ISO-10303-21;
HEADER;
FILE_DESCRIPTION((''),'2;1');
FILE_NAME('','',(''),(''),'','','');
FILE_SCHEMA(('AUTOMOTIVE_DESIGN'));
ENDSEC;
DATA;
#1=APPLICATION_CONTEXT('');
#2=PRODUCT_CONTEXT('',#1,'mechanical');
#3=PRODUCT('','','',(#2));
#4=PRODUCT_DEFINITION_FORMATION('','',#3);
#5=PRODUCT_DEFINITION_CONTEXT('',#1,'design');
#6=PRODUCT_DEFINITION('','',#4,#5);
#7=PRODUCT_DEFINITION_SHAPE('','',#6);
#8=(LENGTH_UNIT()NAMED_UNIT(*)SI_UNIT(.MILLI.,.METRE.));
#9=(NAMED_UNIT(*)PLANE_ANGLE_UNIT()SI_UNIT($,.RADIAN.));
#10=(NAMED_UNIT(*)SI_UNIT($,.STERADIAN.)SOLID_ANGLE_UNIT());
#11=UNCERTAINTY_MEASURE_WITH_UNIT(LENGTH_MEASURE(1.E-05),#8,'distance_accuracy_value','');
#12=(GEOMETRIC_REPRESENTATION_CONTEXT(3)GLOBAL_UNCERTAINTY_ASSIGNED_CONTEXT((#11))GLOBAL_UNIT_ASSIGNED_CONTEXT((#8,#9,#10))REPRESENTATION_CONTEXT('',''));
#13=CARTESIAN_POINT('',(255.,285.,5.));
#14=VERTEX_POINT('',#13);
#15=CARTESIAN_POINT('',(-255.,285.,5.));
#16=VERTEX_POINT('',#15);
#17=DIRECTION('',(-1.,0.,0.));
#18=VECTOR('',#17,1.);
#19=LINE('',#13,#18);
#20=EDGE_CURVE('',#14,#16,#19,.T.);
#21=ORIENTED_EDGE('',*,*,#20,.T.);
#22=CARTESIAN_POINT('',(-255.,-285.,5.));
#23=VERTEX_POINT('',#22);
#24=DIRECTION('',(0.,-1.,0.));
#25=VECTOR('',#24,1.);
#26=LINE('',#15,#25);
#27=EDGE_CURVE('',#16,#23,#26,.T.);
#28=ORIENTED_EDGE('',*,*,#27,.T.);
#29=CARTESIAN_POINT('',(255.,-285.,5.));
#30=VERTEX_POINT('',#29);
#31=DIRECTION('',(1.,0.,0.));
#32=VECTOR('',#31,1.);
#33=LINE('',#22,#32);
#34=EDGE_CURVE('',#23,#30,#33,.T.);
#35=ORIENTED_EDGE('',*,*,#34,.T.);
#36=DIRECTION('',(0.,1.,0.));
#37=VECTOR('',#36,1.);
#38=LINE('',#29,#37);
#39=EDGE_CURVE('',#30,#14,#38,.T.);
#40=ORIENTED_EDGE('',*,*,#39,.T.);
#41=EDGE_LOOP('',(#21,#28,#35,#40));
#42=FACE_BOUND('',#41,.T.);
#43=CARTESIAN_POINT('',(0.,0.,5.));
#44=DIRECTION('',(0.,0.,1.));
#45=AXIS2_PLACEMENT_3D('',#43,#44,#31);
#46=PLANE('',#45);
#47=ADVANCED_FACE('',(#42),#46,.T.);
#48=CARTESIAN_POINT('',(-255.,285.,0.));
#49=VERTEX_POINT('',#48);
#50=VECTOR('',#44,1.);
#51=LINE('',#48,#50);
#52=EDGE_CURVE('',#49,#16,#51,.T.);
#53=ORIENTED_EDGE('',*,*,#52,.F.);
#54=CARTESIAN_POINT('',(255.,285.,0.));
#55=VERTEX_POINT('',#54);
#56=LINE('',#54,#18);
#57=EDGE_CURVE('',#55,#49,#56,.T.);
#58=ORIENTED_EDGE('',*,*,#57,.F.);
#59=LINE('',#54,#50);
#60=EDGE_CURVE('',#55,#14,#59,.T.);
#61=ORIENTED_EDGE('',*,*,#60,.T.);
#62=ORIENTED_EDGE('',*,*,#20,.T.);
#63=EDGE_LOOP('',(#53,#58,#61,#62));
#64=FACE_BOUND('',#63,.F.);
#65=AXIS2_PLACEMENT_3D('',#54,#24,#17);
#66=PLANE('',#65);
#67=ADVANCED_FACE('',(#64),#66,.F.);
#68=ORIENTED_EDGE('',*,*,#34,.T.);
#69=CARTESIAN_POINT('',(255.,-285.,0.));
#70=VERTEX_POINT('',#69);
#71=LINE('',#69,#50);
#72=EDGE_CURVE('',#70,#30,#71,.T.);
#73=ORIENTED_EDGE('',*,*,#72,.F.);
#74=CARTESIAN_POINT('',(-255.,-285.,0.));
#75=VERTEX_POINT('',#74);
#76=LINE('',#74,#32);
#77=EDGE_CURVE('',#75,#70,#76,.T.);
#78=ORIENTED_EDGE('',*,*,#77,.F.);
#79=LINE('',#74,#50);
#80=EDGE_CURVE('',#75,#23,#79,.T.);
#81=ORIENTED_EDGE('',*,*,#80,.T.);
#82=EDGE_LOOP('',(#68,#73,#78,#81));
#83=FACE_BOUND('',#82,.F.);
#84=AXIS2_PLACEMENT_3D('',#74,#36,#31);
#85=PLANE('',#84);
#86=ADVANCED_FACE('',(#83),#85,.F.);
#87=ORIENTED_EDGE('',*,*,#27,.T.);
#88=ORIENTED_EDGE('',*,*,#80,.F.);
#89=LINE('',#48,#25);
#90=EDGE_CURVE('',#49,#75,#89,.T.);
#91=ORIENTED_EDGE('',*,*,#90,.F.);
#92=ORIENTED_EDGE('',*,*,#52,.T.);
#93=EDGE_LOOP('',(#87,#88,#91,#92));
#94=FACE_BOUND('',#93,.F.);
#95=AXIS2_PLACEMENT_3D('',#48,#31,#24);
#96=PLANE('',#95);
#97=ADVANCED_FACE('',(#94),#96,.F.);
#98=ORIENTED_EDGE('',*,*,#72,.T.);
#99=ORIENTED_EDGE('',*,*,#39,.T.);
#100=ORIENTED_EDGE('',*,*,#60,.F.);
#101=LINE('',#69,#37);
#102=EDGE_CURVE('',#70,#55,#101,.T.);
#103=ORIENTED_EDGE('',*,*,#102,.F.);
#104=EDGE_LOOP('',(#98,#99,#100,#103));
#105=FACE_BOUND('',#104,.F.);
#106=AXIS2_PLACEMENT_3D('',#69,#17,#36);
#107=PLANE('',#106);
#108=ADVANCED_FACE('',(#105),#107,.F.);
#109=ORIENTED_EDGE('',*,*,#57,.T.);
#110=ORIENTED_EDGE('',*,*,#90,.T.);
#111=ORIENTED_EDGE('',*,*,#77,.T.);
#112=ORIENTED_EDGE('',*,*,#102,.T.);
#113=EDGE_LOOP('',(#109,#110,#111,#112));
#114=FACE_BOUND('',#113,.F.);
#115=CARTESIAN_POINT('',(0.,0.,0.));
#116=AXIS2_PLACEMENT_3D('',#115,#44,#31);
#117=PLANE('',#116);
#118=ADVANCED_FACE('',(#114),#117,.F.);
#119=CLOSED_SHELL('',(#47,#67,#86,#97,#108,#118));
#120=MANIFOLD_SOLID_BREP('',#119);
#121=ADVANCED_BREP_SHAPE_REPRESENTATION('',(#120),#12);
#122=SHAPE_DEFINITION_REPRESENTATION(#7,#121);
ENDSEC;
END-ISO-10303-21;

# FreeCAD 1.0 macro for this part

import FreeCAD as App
import Part
import Sketcher
from FreeCAD import Vector

doc = App.newDocument("Part")
body = doc.addObject("PartDesign::Body", "Body")

sketch1 = body.newObject("Sketcher::SketchObject", "Sketch")
sketch1.AttachmentSupport = (doc.getObject("XY_Plane"), [""])
sketch1.MapMode = "FlatFace"
sketch1.addGeometry([
    Part.LineSegment(Vector(-255, 285, 0), Vector(-255, -285, 0)),
    Part.LineSegment(Vector(-255, -285, 0), Vector(255, -285, 0)),
    Part.LineSegment(Vector(255, -285, 0), Vector(255, 285, 0)),
    Part.LineSegment(Vector(255, 285, 0), Vector(-255, 285, 0)),
], False)
sketch1.addConstraint([
    Sketcher.Constraint("Coincident", 0, 2, 1, 1),
    Sketcher.Constraint("Coincident", 1, 2, 2, 1),
    Sketcher.Constraint("Coincident", 2, 2, 3, 1),
    Sketcher.Constraint("Coincident", 3, 2, 0, 1),
    Sketcher.Constraint("Vertical", 0),
    Sketcher.Constraint("Horizontal", 1),
    Sketcher.Constraint("Vertical", 2),
    Sketcher.Constraint("Horizontal", 3),
    Sketcher.Constraint("Symmetric", 0, 2, 2, 2, -1, 1),
    Sketcher.Constraint("DistanceX", 1, 1, 1, 2, 510.0),
    Sketcher.Constraint("DistanceY", 0, 2, 0, 1, 570.0),
])
pad1 = body.newObject("PartDesign::Pad", "Pad")
pad1.Profile = sketch1
pad1.Length = 5

doc.recompute()
